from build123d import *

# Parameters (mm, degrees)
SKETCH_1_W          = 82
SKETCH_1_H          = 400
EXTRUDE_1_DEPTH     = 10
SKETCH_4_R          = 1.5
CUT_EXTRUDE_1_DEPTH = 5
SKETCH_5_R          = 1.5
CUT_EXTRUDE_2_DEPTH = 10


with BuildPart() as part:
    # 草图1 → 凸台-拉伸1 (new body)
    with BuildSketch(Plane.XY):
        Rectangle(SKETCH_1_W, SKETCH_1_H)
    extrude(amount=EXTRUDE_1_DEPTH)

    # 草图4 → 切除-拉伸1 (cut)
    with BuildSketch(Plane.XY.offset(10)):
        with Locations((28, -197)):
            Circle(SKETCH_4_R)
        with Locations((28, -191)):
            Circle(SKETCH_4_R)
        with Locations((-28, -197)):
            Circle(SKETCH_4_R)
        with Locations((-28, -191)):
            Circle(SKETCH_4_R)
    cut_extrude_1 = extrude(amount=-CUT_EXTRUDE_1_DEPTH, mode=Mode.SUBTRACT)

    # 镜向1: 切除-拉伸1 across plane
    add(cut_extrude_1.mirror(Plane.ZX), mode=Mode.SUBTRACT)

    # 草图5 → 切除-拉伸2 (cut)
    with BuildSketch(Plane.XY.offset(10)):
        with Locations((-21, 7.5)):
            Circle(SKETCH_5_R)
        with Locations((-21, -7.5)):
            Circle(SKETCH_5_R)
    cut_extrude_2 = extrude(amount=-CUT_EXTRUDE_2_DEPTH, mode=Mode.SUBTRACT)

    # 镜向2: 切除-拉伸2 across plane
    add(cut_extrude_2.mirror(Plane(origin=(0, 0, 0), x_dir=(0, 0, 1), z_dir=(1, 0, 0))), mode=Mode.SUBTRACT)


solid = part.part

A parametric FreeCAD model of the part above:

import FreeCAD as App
import Part
import Sketcher

V = App.Vector
Q = App.Units.Quantity

doc = App.newDocument("Part")
body = doc.addObject("PartDesign::Body", "Body")

sketch1 = doc.addObject("Sketcher::SketchObject", "Sketch")
body.addObject(sketch1)
sketch1.AttachmentSupport = (doc.XY_Plane, [""])
sketch1.MapMode = "FlatFace"
sketch1.addGeometry([
    Part.LineSegment(V(-41, 200, 0), V(-41, -200, 0)),
    Part.LineSegment(V(-41, -200, 0), V(41, -200, 0)),
    Part.LineSegment(V(41, -200, 0), V(41, 200, 0)),
    Part.LineSegment(V(41, 200, 0), V(-41, 200, 0)),
], False)
sketch1.addConstraint([
    Sketcher.Constraint("Coincident", 0, 2, 1, 1),
    Sketcher.Constraint("Coincident", 1, 2, 2, 1),
    Sketcher.Constraint("Coincident", 2, 2, 3, 1),
    Sketcher.Constraint("Coincident", 3, 2, 0, 1),
    Sketcher.Constraint("Vertical", 0),
    Sketcher.Constraint("Horizontal", 1),
    Sketcher.Constraint("Vertical", 2),
    Sketcher.Constraint("Horizontal", 3),
    Sketcher.Constraint("Symmetric", 0, 2, 2, 2, -1, 1),
    Sketcher.Constraint("DistanceX", 1, 1, 1, 2, Q("82 mm")),
    Sketcher.Constraint("DistanceY", 0, 2, 0, 1, Q("400 mm")),
])
pad1 = doc.addObject("PartDesign::Pad", "Pad")
body.addObject(pad1)
pad1.Profile = sketch1
pad1.Length = 10

sketch2 = doc.addObject("Sketcher::SketchObject", "Sketch001")
body.addObject(sketch2)
sketch2.AttachmentSupport = (doc.XY_Plane, [""])
sketch2.MapMode = "FlatFace"
sketch2.AttachmentOffset = App.Placement(V(0, 0, 10), App.Rotation())
sketch2.addGeometry([
    Part.Circle(V(28, -197, 0), V(0, 0, 1), 1.5),
    Part.Circle(V(28, -191, 0), V(0, 0, 1), 1.5),
    Part.Circle(V(-28, -197, 0), V(0, 0, 1), 1.5),
    Part.Circle(V(-28, -191, 0), V(0, 0, 1), 1.5),
], False)
sketch2.addConstraint([
    Sketcher.Constraint("Equal", 0, 1),
    Sketcher.Constraint("Equal", 1, 2),
    Sketcher.Constraint("Equal", 2, 3),
    Sketcher.Constraint("Symmetric", 0, 3, 2, 3, -2),
    Sketcher.Constraint("Symmetric", 1, 3, 3, 3, -2),
    Sketcher.Constraint("Vertical", 0, 3, 1, 3),
    Sketcher.Constraint("Diameter", 0, Q("3 mm")),
    Sketcher.Constraint("DistanceX", -1, 1, 0, 3, Q("28 mm")),
    Sketcher.Constraint("DistanceY", 0, 3, -1, 1, Q("197 mm")),
    Sketcher.Constraint("DistanceY", 1, 3, -1, 1, Q("191 mm")),
])
pocket1 = doc.addObject("PartDesign::Pocket", "Pocket")
body.addObject(pocket1)
pocket1.Profile = sketch2
pocket1.Length = 5
doc.recompute()

mirrored = doc.addObject("PartDesign::Mirrored", "Mirrored")
body.addObject(mirrored)
mirrored.Originals = [pocket1]
mirrored.MirrorPlane = (doc.XZ_Plane, [""])
body.Tip = mirrored

sketch3 = doc.addObject("Sketcher::SketchObject", "Sketch002")
body.addObject(sketch3)
sketch3.AttachmentSupport = (doc.XY_Plane, [""])
sketch3.MapMode = "FlatFace"
sketch3.AttachmentOffset = App.Placement(V(0, 0, 10), App.Rotation())
sketch3.addGeometry([
    Part.Circle(V(-21, 7.5, 0), V(0, 0, 1), 1.5),
    Part.Circle(V(-21, -7.5, 0), V(0, 0, 1), 1.5),
], False)
sketch3.addConstraint([
    Sketcher.Constraint("Equal", 0, 1),
    Sketcher.Constraint("Symmetric", 0, 3, 1, 3, -1),
    Sketcher.Constraint("Diameter", 0, Q("3 mm")),
    Sketcher.Constraint("DistanceX", 0, 3, -1, 1, Q("21 mm")),
    Sketcher.Constraint("DistanceY", 1, 3, 0, 3, Q("15 mm")),
])
pocket2 = doc.addObject("PartDesign::Pocket", "Pocket001")
body.addObject(pocket2)
pocket2.Profile = sketch3
pocket2.Length = 10
doc.recompute()

mirrored2 = doc.addObject("PartDesign::Mirrored", "Mirrored001")
body.addObject(mirrored2)
mirrored2.Originals = [pocket2]
mirrored2.MirrorPlane = (doc.YZ_Plane, [""])
body.Tip = mirrored2

doc.recompute()
